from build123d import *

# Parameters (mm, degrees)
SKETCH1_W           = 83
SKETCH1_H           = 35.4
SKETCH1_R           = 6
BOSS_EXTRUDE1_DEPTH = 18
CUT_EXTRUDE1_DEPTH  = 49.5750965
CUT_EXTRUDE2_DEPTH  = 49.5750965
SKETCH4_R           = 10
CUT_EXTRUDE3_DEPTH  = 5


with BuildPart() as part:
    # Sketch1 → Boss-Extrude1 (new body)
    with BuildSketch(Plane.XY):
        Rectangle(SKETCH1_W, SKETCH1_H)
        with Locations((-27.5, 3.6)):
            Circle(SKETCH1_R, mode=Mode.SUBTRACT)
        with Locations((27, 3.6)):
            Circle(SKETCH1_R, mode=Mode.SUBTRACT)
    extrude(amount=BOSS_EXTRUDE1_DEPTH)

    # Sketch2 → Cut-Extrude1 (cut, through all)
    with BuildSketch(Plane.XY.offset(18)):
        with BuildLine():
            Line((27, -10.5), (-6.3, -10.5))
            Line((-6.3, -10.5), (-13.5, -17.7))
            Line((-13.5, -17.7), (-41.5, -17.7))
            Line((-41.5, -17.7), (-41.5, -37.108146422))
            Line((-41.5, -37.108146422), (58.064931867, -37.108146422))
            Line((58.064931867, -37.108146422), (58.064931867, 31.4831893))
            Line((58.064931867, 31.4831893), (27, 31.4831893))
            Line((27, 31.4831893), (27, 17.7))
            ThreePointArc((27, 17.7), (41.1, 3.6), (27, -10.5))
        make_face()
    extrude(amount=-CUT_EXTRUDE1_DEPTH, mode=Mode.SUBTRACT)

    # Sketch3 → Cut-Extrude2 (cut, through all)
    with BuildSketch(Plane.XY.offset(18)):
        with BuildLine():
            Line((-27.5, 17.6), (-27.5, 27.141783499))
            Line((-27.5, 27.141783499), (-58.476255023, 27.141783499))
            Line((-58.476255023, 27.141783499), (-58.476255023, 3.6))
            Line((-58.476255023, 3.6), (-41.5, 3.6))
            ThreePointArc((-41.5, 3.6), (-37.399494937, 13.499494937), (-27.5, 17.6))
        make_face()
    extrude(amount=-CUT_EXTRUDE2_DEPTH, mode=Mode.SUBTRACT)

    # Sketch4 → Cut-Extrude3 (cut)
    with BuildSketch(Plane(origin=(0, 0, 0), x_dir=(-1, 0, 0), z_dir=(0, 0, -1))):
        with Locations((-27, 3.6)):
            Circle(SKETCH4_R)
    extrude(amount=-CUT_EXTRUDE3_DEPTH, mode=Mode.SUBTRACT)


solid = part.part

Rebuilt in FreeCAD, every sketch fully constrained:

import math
import FreeCAD as App
import Part
import Sketcher
Q = App.Units.Quantity


def add_polygon(sketch, points):
    """Adds a closed chain of lines whose ends are joined by coincident constraints."""
    first, n = sketch.GeometryCount, len(points)
    for a, b in zip(points, points[1:] + points[:1]):
        sketch.addGeometry(Part.LineSegment(App.Vector(*a, 0), App.Vector(*b, 0)), False)
    for i in range(n):
        sketch.addConstraint(Sketcher.Constraint("Coincident", first + i, 2, first + (i + 1) % n, 1))

doc = App.newDocument("Part")
body = doc.addObject("PartDesign::Body", "Body")

sketch1 = doc.addObject("Sketcher::SketchObject", "Sketch")
body.addObject(sketch1)
sketch1.AttachmentSupport = (doc.XY_Plane, [""])
sketch1.MapMode = "FlatFace"
add_polygon(sketch1, [(-42, 18), (-42, -18), (42, -18), (42, 18)])
sketch1.addGeometry(Part.Circle(App.Vector(-28, 4, 0), App.Vector(0, 0, 1), 6), False)
sketch1.addGeometry(Part.Circle(App.Vector(27, 4, 0), App.Vector(0, 0, 1), 6), False)
sketch1.addConstraint(Sketcher.Constraint("Vertical", 0))
sketch1.addConstraint(Sketcher.Constraint("Horizontal", 1))
sketch1.addConstraint(Sketcher.Constraint("Vertical", 2))
sketch1.addConstraint(Sketcher.Constraint("Horizontal", 3))
sketch1.addConstraint(Sketcher.Constraint("Equal", 4, 5))
sketch1.addConstraint(Sketcher.Constraint("Symmetric", 0, 2, 2, 2, -1, 1))
sketch1.addConstraint(Sketcher.Constraint("Horizontal", 4, 3, 5, 3))
sketch1.addConstraint(Sketcher.Constraint("Diameter", 4, 12.0))
sketch1.addConstraint(Sketcher.Constraint("DistanceX", 1, 1, 1, 2, 83.0))
sketch1.addConstraint(Sketcher.Constraint("DistanceY", 0, 2, 0, 1, 35.4))
sketch1.addConstraint(Sketcher.Constraint("DistanceX", -1, 1, 5, 3, 27.0))
sketch1.addConstraint(Sketcher.Constraint("DistanceX", 0, 2, 4, 3, 14.0))
sketch1.addConstraint(Sketcher.Constraint("DistanceY", -1, 1, 4, 3, 3.6))
pad1 = doc.addObject("PartDesign::Pad", "Pad")
body.addObject(pad1)
pad1.Profile = sketch1
pad1.Length = 18

sketch2 = doc.addObject("Sketcher::SketchObject", "Sketch001")
body.addObject(sketch2)
sketch2.AttachmentSupport = (doc.XY_Plane, [""])
sketch2.MapMode = "FlatFace"
sketch2.AttachmentOffset = App.Placement(App.Vector(0, 0, 18), App.Rotation())
sketch2.addGeometry(Part.LineSegment(App.Vector(27, -10, 0), App.Vector(-6, -10, 0)), False)
sketch2.addGeometry(Part.LineSegment(App.Vector(-6, -10, 0), App.Vector(-14, -18, 0)), False)
sketch2.addGeometry(Part.LineSegment(App.Vector(-14, -18, 0), App.Vector(-42, -18, 0)), False)
sketch2.addGeometry(Part.LineSegment(App.Vector(-42, -18, 0), App.Vector(-42, -37, 0)), False)
sketch2.addGeometry(Part.LineSegment(App.Vector(-42, -37, 0), App.Vector(58, -37, 0)), False)
sketch2.addGeometry(Part.LineSegment(App.Vector(58, -37, 0), App.Vector(58, 31, 0)), False)
sketch2.addGeometry(Part.LineSegment(App.Vector(58, 31, 0), App.Vector(27, 31, 0)), False)
sketch2.addGeometry(Part.LineSegment(App.Vector(27, 31, 0), App.Vector(27, 18, 0)), False)
sketch2.addGeometry(Part.ArcOfCircle(Part.Circle(App.Vector(27, 4, 0), App.Vector(0, 0, 1), 14), math.radians(-90), math.radians(90)), False)
sketch2.addConstraint(Sketcher.Constraint("Coincident", 0, 2, 1, 1))
sketch2.addConstraint(Sketcher.Constraint("Coincident", 1, 2, 2, 1))
sketch2.addConstraint(Sketcher.Constraint("Coincident", 2, 2, 3, 1))
sketch2.addConstraint(Sketcher.Constraint("Coincident", 3, 2, 4, 1))
sketch2.addConstraint(Sketcher.Constraint("Coincident", 4, 2, 5, 1))
sketch2.addConstraint(Sketcher.Constraint("Coincident", 5, 2, 6, 1))
sketch2.addConstraint(Sketcher.Constraint("Coincident", 6, 2, 7, 1))
sketch2.addConstraint(Sketcher.Constraint("Coincident", 7, 2, 8, 2))
sketch2.addConstraint(Sketcher.Constraint("Tangent", 8, 1, 0, 1))
sketch2.addConstraint(Sketcher.Constraint("Horizontal", 0))
sketch2.addConstraint(Sketcher.Constraint("Horizontal", 2))
sketch2.addConstraint(Sketcher.Constraint("Vertical", 3))
sketch2.addConstraint(Sketcher.Constraint("Horizontal", 4))
sketch2.addConstraint(Sketcher.Constraint("Vertical", 5))
sketch2.addConstraint(Sketcher.Constraint("Horizontal", 6))
sketch2.addConstraint(Sketcher.Constraint("Vertical", 7))
sketch2.addConstraint(Sketcher.Constraint("Vertical", 8, 3, 6, 2))
sketch2.addConstraint(Sketcher.Constraint("Radius", 8, 14.1))
sketch2.addConstraint(Sketcher.Constraint("DistanceX", 2, 2, 2, 1, 28.0))
sketch2.addConstraint(Sketcher.Constraint("Angle", 1, Q("-135 deg")))
sketch2.addConstraint(Sketcher.Constraint("DistanceX", 0, 2, 0, 1, 33.3))
sketch2.addConstraint(Sketcher.Constraint("DistanceX", -1, 1, 8, 3, 27.0))
sketch2.addConstraint(Sketcher.Constraint("DistanceY", -1, 1, 8, 3, 3.6))
sketch2.addConstraint(Sketcher.Constraint("DistanceX", 1, 2, -1, 1, 13.5))
sketch2.addConstraint(Sketcher.Constraint("DistanceX", 4, 1, 4, 2, 99.564932))
sketch2.addConstraint(Sketcher.Constraint("DistanceY", 7, 2, 7, 1, 13.783189))
sketch2.addConstraint(Sketcher.Constraint("DistanceY", 3, 2, 3, 1, 19.408146))
pocket1 = doc.addObject("PartDesign::Pocket", "Pocket")
body.addObject(pocket1)
pocket1.Profile = sketch2
pocket1.Type = "ThroughAll"

sketch3 = doc.addObject("Sketcher::SketchObject", "Sketch002")
body.addObject(sketch3)
sketch3.AttachmentSupport = (doc.XY_Plane, [""])
sketch3.MapMode = "FlatFace"
sketch3.AttachmentOffset = App.Placement(App.Vector(0, 0, 18), App.Rotation())
sketch3.addGeometry(Part.LineSegment(App.Vector(-28, 18, 0), App.Vector(-28, 27, 0)), False)
sketch3.addGeometry(Part.LineSegment(App.Vector(-28, 27, 0), App.Vector(-58, 27, 0)), False)
sketch3.addGeometry(Part.LineSegment(App.Vector(-58, 27, 0), App.Vector(-58, 4, 0)), False)
sketch3.addGeometry(Part.LineSegment(App.Vector(-58, 4, 0), App.Vector(-42, 4, 0)), False)
sketch3.addGeometry(Part.ArcOfCircle(Part.Circle(App.Vector(-28, 4, 0), App.Vector(0, 0, 1), 14), math.radians(90), math.radians(180)), False)
sketch3.addConstraint(Sketcher.Constraint("Coincident", 0, 2, 1, 1))
sketch3.addConstraint(Sketcher.Constraint("Coincident", 1, 2, 2, 1))
sketch3.addConstraint(Sketcher.Constraint("Coincident", 2, 2, 3, 1))
sketch3.addConstraint(Sketcher.Constraint("Coincident", 3, 2, 4, 2))
sketch3.addConstraint(Sketcher.Constraint("Coincident", 4, 1, 0, 1))
sketch3.addConstraint(Sketcher.Constraint("Vertical", 0))
sketch3.addConstraint(Sketcher.Constraint("Horizontal", 1))
sketch3.addConstraint(Sketcher.Constraint("Vertical", 2))
sketch3.addConstraint(Sketcher.Constraint("Horizontal", 3))
sketch3.addConstraint(Sketcher.Constraint("Horizontal", 4, 3, 2, 2))
sketch3.addConstraint(Sketcher.Constraint("Vertical", 4, 3, 0, 2))
sketch3.addConstraint(Sketcher.Constraint("Radius", 4, 14.0))
sketch3.addConstraint(Sketcher.Constraint("DistanceX", 4, 3, -1, 1, 27.5))
sketch3.addConstraint(Sketcher.Constraint("DistanceY", -1, 1, 4, 3, 3.6))
sketch3.addConstraint(Sketcher.Constraint("DistanceX", 1, 2, 1, 1, 30.976255))
sketch3.addConstraint(Sketcher.Constraint("DistanceY", 0, 1, 0, 2, 9.541783))
pocket2 = doc.addObject("PartDesign::Pocket", "Pocket001")
body.addObject(pocket2)
pocket2.Profile = sketch3
pocket2.Type = "ThroughAll"

sketch4 = doc.addObject("Sketcher::SketchObject", "Sketch003")
body.addObject(sketch4)
sketch4.AttachmentSupport = (doc.XY_Plane, [""])
sketch4.MapMode = "FlatFace"
sketch4.addGeometry(Part.Circle(App.Vector(27, 4, 0), App.Vector(0, 0, 1), 10), False)
sketch4.addConstraint(Sketcher.Constraint("Diameter", 0, 20.0))
sketch4.addConstraint(Sketcher.Constraint("DistanceX", -1, 1, 0, 3, 27.0))
sketch4.addConstraint(Sketcher.Constraint("DistanceY", -1, 1, 0, 3, 3.6))
pocket3 = doc.addObject("PartDesign::Pocket", "Pocket002")
body.addObject(pocket3)
pocket3.Profile = sketch4
pocket3.Length = 5
pocket3.Reversed = True

doc.recompute()
